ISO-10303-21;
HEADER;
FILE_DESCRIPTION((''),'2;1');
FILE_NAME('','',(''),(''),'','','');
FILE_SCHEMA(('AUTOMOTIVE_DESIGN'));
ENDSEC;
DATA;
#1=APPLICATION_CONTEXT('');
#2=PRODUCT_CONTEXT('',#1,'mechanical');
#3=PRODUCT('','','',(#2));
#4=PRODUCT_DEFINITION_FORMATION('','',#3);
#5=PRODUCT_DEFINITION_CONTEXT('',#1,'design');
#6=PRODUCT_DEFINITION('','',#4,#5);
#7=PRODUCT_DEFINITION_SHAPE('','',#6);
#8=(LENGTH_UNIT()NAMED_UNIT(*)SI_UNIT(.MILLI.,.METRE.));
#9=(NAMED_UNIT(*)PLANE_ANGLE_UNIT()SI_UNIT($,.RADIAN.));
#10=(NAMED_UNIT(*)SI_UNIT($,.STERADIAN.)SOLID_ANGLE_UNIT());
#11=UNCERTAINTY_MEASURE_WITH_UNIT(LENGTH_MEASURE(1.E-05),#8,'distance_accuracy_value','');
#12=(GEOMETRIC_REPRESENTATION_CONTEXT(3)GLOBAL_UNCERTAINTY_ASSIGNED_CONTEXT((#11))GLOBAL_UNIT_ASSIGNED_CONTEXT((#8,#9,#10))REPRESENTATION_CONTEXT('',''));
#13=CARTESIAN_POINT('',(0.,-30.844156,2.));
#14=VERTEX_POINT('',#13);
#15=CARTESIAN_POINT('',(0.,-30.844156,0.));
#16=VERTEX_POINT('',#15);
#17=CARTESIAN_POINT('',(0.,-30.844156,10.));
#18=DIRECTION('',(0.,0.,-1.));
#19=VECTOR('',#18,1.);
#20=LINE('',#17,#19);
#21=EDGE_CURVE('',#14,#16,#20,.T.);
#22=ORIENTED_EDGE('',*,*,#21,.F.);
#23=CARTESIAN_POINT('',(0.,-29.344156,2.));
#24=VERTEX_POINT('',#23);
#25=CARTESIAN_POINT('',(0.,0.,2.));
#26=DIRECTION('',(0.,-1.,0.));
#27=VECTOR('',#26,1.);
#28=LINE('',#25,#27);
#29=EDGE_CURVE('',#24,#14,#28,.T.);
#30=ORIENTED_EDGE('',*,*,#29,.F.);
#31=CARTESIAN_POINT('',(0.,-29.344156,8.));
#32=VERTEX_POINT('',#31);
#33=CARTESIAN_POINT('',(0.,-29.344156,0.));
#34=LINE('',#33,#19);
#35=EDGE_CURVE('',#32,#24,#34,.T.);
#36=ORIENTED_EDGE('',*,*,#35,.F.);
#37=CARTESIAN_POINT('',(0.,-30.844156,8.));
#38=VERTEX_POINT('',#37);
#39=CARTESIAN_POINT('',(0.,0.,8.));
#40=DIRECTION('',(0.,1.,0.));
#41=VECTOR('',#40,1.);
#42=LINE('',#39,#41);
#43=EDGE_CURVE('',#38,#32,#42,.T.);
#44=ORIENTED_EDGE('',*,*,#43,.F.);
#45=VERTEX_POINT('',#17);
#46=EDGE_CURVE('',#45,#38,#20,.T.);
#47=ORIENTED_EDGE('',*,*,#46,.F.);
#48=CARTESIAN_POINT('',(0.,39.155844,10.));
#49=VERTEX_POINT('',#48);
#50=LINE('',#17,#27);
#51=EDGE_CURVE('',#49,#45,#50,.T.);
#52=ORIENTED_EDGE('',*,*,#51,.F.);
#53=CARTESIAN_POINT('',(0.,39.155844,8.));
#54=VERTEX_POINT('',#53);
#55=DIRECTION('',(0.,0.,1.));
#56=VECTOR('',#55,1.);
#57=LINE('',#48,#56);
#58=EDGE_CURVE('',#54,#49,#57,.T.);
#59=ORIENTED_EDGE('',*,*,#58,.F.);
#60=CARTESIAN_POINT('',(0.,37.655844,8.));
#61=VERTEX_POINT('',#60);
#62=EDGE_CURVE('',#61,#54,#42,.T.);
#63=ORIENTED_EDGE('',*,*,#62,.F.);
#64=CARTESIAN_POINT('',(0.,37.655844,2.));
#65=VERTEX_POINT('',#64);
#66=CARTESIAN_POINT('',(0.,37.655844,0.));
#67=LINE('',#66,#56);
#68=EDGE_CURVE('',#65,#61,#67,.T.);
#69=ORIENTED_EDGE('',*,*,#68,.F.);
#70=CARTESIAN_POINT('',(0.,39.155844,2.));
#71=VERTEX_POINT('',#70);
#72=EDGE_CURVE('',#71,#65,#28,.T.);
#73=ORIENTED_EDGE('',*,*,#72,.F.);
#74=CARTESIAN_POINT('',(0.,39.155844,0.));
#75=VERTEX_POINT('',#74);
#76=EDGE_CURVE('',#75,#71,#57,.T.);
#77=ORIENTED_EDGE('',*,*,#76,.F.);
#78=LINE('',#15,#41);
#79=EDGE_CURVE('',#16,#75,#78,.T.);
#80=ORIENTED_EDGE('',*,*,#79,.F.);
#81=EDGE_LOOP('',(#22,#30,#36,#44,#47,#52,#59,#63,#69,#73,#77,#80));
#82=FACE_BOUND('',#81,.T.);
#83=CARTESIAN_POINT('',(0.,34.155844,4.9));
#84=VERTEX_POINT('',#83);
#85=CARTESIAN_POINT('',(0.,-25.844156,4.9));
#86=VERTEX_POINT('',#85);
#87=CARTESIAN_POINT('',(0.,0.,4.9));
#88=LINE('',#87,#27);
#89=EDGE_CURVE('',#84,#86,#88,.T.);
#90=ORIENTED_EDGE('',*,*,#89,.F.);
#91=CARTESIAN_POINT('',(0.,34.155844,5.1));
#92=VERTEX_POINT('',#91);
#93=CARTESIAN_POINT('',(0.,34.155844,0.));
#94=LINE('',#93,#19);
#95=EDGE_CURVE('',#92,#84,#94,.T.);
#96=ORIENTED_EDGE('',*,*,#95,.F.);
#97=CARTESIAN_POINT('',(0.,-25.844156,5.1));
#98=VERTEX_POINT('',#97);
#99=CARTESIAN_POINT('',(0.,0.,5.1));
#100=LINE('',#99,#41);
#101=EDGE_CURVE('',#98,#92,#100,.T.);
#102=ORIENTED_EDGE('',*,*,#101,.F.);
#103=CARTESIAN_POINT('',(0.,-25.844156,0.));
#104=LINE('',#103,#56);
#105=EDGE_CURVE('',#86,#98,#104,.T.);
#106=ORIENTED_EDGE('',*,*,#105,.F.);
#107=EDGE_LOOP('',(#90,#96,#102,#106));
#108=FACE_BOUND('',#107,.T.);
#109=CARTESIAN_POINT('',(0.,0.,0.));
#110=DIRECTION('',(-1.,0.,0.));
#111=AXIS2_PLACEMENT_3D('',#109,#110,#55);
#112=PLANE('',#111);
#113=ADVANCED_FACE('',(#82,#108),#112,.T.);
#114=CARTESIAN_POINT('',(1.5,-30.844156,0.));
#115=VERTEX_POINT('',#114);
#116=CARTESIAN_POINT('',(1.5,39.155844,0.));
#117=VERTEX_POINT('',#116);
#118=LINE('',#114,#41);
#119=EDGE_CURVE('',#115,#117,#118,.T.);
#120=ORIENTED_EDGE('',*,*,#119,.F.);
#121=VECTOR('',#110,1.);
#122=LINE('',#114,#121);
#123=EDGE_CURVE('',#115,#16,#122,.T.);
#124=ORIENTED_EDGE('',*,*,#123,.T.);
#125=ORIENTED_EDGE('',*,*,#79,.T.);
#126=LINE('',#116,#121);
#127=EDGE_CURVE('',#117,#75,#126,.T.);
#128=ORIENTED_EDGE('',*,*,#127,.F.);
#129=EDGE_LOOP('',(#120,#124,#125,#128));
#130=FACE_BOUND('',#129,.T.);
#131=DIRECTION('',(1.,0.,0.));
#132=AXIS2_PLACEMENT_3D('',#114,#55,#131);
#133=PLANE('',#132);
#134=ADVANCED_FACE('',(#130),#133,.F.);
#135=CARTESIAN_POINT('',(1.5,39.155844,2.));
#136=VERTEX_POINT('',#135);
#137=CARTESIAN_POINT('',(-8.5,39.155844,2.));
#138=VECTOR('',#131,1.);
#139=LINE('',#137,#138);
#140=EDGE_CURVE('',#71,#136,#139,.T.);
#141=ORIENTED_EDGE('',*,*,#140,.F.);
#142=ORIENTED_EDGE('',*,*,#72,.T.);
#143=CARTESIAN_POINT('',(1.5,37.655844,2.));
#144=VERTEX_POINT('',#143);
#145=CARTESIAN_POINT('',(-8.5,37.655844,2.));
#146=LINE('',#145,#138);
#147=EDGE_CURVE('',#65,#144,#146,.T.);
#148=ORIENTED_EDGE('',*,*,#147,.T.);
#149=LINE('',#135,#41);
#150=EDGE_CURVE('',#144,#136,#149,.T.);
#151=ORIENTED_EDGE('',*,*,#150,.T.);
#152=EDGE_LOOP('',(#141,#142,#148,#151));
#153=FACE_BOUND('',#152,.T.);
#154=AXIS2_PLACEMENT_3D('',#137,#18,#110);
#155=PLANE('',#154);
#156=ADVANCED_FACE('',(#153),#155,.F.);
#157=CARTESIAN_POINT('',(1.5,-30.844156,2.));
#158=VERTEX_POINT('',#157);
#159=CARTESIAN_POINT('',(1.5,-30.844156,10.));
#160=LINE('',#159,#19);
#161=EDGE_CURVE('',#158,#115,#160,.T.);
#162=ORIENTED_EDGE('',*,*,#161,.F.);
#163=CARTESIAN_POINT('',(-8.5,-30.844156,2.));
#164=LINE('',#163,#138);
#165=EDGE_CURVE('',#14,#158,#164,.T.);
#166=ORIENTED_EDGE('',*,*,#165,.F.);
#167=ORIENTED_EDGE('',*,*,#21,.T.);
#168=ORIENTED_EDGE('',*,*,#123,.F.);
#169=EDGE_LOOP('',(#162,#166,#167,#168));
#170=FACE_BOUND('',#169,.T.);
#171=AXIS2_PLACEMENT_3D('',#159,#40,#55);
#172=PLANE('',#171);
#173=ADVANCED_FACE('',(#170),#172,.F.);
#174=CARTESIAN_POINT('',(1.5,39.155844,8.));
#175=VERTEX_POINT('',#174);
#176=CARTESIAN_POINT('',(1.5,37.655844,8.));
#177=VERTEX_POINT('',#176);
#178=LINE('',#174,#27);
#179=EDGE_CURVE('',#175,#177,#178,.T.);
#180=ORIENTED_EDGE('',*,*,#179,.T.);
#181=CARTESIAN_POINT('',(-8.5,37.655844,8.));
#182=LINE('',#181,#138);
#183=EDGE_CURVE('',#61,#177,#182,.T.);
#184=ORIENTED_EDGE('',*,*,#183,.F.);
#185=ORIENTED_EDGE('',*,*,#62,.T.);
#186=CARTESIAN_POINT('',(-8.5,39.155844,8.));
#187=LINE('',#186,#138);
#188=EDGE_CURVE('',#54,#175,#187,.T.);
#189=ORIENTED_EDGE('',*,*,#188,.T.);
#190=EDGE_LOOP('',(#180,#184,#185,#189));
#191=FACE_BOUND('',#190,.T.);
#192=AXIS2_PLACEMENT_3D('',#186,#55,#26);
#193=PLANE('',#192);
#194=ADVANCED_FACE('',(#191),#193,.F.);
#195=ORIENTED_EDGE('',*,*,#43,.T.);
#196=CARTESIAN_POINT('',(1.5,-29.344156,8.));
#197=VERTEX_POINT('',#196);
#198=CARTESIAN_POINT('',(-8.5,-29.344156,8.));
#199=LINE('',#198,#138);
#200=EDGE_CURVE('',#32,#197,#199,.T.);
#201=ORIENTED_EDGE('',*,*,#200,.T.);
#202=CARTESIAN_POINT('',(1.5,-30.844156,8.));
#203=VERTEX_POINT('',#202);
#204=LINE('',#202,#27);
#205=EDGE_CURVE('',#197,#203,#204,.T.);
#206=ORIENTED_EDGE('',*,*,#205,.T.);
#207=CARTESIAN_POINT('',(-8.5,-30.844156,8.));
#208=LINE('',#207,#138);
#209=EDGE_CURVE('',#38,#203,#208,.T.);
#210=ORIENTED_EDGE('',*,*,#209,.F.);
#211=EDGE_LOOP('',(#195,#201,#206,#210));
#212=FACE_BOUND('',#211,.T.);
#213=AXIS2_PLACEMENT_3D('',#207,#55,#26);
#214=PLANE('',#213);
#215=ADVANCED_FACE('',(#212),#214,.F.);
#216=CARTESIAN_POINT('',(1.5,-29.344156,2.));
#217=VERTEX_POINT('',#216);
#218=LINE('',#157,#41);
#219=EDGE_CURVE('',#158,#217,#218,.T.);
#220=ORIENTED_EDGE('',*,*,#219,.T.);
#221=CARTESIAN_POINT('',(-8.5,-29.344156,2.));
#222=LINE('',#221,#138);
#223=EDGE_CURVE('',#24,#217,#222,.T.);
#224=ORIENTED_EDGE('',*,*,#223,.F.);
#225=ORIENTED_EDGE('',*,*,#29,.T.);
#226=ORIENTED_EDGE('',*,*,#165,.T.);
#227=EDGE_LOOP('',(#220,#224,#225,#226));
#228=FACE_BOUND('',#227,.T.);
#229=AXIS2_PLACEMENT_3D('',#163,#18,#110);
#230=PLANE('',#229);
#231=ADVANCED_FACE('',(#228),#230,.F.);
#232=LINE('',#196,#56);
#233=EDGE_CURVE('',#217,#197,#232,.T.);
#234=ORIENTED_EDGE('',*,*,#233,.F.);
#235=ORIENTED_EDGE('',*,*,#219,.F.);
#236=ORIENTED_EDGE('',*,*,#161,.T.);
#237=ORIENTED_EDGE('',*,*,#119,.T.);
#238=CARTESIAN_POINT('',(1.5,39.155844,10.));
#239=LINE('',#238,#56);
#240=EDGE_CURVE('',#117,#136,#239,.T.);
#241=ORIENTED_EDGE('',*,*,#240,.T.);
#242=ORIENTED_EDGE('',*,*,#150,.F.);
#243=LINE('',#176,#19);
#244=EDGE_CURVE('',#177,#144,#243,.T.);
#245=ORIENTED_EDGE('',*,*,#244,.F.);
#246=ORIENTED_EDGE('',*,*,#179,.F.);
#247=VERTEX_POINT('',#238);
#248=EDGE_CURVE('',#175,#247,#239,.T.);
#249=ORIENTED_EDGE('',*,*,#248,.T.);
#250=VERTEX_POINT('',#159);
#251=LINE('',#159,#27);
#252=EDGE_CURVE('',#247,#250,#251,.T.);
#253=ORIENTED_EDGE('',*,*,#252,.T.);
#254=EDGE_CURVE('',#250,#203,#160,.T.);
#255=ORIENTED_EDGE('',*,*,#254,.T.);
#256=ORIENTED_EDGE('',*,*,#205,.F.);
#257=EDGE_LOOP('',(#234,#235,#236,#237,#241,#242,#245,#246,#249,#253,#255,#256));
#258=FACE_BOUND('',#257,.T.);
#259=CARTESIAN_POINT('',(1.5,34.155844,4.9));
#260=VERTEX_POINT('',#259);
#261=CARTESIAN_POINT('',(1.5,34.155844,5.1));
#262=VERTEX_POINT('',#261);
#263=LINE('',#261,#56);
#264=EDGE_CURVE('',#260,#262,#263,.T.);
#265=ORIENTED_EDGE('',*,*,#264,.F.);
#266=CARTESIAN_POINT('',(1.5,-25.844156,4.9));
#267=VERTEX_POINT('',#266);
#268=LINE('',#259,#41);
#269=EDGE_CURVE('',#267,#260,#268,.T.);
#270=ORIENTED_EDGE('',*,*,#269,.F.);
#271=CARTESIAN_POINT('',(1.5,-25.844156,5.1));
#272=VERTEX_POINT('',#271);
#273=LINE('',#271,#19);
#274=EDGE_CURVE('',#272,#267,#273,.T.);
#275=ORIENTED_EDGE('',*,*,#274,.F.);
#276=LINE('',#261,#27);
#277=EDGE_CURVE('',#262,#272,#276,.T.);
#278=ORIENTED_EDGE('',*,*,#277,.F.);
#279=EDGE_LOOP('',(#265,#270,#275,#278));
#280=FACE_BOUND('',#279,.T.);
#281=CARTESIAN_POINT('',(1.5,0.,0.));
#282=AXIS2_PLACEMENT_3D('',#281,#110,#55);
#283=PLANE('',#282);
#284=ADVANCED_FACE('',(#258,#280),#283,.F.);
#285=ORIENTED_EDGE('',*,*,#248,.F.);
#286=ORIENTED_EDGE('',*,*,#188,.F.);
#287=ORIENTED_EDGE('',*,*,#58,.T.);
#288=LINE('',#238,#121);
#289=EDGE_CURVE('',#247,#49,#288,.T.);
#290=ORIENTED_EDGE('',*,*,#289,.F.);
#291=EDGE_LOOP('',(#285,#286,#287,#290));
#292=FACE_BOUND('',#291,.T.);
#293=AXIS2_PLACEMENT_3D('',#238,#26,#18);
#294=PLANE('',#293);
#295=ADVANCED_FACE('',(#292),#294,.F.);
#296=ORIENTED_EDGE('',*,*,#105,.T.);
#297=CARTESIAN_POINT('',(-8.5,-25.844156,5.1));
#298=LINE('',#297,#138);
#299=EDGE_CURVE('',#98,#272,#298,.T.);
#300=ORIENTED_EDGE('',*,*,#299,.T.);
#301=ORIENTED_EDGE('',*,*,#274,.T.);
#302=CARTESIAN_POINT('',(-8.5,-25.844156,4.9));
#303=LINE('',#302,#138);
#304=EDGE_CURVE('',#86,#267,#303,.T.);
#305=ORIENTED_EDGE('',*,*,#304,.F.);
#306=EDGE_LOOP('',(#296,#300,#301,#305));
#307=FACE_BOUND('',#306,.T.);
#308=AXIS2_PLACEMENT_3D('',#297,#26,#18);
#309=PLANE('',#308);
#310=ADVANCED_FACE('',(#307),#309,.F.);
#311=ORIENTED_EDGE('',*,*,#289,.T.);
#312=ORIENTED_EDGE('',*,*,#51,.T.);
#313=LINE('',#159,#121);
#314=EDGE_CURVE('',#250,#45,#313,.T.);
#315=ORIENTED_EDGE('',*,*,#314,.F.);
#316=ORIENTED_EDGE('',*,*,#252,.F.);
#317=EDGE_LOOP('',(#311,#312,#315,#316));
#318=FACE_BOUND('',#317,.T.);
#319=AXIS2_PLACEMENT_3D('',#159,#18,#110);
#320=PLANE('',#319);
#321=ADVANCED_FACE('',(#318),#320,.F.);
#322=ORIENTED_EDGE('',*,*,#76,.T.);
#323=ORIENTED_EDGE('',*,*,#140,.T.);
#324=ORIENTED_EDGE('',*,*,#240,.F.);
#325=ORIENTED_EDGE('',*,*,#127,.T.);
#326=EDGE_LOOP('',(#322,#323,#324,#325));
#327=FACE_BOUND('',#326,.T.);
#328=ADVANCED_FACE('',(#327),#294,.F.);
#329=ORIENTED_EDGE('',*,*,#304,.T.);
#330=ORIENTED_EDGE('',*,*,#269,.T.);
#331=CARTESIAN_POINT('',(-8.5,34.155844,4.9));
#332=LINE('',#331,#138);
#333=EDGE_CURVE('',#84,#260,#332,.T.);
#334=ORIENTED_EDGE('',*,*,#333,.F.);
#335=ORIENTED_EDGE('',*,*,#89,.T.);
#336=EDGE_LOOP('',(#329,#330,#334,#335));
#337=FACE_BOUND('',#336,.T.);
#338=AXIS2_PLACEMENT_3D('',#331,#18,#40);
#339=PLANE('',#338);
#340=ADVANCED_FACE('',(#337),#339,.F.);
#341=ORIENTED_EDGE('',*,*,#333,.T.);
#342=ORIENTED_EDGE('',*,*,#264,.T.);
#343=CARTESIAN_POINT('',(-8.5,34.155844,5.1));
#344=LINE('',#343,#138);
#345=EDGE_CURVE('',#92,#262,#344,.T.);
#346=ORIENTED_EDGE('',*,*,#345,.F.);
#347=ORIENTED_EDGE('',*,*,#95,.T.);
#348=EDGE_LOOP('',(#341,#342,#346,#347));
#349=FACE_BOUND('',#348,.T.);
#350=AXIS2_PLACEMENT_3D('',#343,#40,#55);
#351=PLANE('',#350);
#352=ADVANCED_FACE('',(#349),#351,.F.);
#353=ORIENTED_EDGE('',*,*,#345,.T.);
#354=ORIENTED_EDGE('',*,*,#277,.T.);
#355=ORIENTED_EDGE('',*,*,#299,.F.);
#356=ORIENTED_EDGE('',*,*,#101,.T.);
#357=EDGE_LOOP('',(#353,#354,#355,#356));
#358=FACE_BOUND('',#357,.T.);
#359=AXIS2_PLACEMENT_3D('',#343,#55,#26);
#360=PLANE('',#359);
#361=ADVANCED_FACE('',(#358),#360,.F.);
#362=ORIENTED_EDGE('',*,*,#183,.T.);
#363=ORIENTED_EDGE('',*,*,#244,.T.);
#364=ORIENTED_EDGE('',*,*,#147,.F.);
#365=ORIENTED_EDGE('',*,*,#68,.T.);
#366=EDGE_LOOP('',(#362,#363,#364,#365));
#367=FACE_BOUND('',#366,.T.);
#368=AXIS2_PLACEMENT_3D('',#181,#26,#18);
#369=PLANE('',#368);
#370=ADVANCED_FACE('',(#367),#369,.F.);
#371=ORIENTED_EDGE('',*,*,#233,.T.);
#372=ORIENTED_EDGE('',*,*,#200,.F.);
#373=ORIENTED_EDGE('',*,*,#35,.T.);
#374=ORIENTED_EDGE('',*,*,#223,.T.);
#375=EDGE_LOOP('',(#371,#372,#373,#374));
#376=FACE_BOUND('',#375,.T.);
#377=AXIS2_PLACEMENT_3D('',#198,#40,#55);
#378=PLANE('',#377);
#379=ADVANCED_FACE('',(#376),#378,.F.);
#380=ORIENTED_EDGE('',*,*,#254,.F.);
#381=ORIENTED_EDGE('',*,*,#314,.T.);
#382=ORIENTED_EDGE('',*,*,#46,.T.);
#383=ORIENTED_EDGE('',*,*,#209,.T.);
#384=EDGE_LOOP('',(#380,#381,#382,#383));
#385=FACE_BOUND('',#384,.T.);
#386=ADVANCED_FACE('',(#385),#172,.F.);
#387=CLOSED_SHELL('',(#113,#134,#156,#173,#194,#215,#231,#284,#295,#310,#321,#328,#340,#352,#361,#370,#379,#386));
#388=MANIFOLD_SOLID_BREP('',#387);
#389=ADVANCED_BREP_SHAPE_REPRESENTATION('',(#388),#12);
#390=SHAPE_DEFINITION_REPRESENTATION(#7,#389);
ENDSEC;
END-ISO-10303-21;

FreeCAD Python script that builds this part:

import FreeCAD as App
import Part
import Sketcher
from FreeCAD import Vector
Q = App.Units.Quantity


def add_polygon(sketch, points):
    """Adds a closed chain of lines whose ends are joined by coincident constraints."""
    first, n = sketch.GeometryCount, len(points)
    for a, b in zip(points, points[1:] + points[:1]):
        sketch.addGeometry(Part.LineSegment(App.Vector(*a, 0), App.Vector(*b, 0)), False)
    for i in range(n):
        sketch.addConstraint(Sketcher.Constraint("Coincident", first + i, 2, first + (i + 1) % n, 1))

doc = App.newDocument("Part")
body = doc.addObject("PartDesign::Body", "Body")

# Sketch on YZ plane
sketch1 = body.newObject("Sketcher::SketchObject", "Sketch")
sketch1.AttachmentSupport = (doc.getObject("YZ_Plane"), [""])
sketch1.MapMode = "FlatFace"
add_polygon(sketch1, [(39, 10), (-31, 10), (-31, 0), (39, 0)])  # lines 0-3
sketch1.addConstraint([
    Sketcher.Constraint("Horizontal", 0),
    Sketcher.Constraint("Vertical", 1),
    Sketcher.Constraint("Horizontal", 2),
    Sketcher.Constraint("Vertical", 3),
    Sketcher.Constraint("PointOnObject", 1, 2, -1),
    Sketcher.Constraint("DistanceX", 0, 2, 0, 1, Q("70 mm")),
    Sketcher.Constraint("DistanceY", 1, 2, 1, 1, Q("10 mm")),
    Sketcher.Constraint("DistanceX", 0, 2, -1, 1, Q("30.844156 mm")),
])
pad1 = body.newObject("PartDesign::Pad", "Pad")
pad1.Profile = sketch1
pad1.Length = 1.5

# Sketch on YZ plane
sketch2 = body.newObject("Sketcher::SketchObject", "Sketch001")
sketch2.AttachmentSupport = (doc.getObject("YZ_Plane"), [""])
sketch2.MapMode = "FlatFace"
sketch2.AttachmentOffset = App.Placement(Vector(0, 0, 1.5), App.Rotation())
add_polygon(sketch2, [(34.16, 5.1), (-25.84, 5.1), (-25.84, 4.9), (34.16, 4.9)])  # lines 0-3
sketch2.addConstraint([
    Sketcher.Constraint("Horizontal", 0),
    Sketcher.Constraint("Vertical", 1),
    Sketcher.Constraint("Horizontal", 2),
    Sketcher.Constraint("Vertical", 3),
    Sketcher.Constraint("DistanceX", 0, 2, 0, 1, Q("60 mm")),
    Sketcher.Constraint("DistanceY", 1, 2, 1, 1, Q("0.2 mm")),
    Sketcher.Constraint("DistanceY", -1, 1, 0, 2, Q("5.1 mm")),
    Sketcher.Constraint("DistanceX", 0, 2, -1, 1, Q("25.844156 mm")),
])
pocket1 = body.newObject("PartDesign::Pocket", "Pocket")
pocket1.Profile = sketch2
pocket1.Length = 10

# Sketch on YZ plane
sketch3 = body.newObject("Sketcher::SketchObject", "Sketch002")
sketch3.AttachmentSupport = (doc.getObject("YZ_Plane"), [""])
sketch3.MapMode = "FlatFace"
sketch3.AttachmentOffset = App.Placement(Vector(0, 0, 1.5), App.Rotation())
add_polygon(sketch3, [(39.2, 8), (37.7, 8), (37.7, 2), (39.2, 2)])  # lines 0-3
add_polygon(sketch3, [(-29.3, 8), (-30.8, 8), (-30.8, 2), (-29.3, 2)])  # lines 4-7
sketch3.addConstraint([
    Sketcher.Constraint("Horizontal", 0),
    Sketcher.Constraint("Vertical", 1),
    Sketcher.Constraint("Horizontal", 2),
    Sketcher.Constraint("Vertical", 3),
    Sketcher.Constraint("Horizontal", 4),
    Sketcher.Constraint("Vertical", 5),
    Sketcher.Constraint("Horizontal", 6),
    Sketcher.Constraint("Vertical", 7),
    Sketcher.Constraint("Horizontal", 3, 2, 4, 2),
    Sketcher.Constraint("Horizontal", 2, 2, 5, 2),
    Sketcher.Constraint("Equal", 2, 4),
    Sketcher.Constraint("DistanceY", 1, 2, 1, 1, Q("6 mm")),
    Sketcher.Constraint("DistanceX", 0, 2, 0, 1, Q("1.5 mm")),
    Sketcher.Constraint("DistanceY", -1, 1, 0, 2, Q("8 mm")),
    Sketcher.Constraint("DistanceX", 4, 2, 3, 2, Q("70 mm")),
    Sketcher.Constraint("DistanceX", -1, 1, 0, 2, Q("37.655844 mm")),
])
pocket2 = body.newObject("PartDesign::Pocket", "Pocket001")
pocket2.Profile = sketch3
pocket2.Length = 10

doc.recompute()
